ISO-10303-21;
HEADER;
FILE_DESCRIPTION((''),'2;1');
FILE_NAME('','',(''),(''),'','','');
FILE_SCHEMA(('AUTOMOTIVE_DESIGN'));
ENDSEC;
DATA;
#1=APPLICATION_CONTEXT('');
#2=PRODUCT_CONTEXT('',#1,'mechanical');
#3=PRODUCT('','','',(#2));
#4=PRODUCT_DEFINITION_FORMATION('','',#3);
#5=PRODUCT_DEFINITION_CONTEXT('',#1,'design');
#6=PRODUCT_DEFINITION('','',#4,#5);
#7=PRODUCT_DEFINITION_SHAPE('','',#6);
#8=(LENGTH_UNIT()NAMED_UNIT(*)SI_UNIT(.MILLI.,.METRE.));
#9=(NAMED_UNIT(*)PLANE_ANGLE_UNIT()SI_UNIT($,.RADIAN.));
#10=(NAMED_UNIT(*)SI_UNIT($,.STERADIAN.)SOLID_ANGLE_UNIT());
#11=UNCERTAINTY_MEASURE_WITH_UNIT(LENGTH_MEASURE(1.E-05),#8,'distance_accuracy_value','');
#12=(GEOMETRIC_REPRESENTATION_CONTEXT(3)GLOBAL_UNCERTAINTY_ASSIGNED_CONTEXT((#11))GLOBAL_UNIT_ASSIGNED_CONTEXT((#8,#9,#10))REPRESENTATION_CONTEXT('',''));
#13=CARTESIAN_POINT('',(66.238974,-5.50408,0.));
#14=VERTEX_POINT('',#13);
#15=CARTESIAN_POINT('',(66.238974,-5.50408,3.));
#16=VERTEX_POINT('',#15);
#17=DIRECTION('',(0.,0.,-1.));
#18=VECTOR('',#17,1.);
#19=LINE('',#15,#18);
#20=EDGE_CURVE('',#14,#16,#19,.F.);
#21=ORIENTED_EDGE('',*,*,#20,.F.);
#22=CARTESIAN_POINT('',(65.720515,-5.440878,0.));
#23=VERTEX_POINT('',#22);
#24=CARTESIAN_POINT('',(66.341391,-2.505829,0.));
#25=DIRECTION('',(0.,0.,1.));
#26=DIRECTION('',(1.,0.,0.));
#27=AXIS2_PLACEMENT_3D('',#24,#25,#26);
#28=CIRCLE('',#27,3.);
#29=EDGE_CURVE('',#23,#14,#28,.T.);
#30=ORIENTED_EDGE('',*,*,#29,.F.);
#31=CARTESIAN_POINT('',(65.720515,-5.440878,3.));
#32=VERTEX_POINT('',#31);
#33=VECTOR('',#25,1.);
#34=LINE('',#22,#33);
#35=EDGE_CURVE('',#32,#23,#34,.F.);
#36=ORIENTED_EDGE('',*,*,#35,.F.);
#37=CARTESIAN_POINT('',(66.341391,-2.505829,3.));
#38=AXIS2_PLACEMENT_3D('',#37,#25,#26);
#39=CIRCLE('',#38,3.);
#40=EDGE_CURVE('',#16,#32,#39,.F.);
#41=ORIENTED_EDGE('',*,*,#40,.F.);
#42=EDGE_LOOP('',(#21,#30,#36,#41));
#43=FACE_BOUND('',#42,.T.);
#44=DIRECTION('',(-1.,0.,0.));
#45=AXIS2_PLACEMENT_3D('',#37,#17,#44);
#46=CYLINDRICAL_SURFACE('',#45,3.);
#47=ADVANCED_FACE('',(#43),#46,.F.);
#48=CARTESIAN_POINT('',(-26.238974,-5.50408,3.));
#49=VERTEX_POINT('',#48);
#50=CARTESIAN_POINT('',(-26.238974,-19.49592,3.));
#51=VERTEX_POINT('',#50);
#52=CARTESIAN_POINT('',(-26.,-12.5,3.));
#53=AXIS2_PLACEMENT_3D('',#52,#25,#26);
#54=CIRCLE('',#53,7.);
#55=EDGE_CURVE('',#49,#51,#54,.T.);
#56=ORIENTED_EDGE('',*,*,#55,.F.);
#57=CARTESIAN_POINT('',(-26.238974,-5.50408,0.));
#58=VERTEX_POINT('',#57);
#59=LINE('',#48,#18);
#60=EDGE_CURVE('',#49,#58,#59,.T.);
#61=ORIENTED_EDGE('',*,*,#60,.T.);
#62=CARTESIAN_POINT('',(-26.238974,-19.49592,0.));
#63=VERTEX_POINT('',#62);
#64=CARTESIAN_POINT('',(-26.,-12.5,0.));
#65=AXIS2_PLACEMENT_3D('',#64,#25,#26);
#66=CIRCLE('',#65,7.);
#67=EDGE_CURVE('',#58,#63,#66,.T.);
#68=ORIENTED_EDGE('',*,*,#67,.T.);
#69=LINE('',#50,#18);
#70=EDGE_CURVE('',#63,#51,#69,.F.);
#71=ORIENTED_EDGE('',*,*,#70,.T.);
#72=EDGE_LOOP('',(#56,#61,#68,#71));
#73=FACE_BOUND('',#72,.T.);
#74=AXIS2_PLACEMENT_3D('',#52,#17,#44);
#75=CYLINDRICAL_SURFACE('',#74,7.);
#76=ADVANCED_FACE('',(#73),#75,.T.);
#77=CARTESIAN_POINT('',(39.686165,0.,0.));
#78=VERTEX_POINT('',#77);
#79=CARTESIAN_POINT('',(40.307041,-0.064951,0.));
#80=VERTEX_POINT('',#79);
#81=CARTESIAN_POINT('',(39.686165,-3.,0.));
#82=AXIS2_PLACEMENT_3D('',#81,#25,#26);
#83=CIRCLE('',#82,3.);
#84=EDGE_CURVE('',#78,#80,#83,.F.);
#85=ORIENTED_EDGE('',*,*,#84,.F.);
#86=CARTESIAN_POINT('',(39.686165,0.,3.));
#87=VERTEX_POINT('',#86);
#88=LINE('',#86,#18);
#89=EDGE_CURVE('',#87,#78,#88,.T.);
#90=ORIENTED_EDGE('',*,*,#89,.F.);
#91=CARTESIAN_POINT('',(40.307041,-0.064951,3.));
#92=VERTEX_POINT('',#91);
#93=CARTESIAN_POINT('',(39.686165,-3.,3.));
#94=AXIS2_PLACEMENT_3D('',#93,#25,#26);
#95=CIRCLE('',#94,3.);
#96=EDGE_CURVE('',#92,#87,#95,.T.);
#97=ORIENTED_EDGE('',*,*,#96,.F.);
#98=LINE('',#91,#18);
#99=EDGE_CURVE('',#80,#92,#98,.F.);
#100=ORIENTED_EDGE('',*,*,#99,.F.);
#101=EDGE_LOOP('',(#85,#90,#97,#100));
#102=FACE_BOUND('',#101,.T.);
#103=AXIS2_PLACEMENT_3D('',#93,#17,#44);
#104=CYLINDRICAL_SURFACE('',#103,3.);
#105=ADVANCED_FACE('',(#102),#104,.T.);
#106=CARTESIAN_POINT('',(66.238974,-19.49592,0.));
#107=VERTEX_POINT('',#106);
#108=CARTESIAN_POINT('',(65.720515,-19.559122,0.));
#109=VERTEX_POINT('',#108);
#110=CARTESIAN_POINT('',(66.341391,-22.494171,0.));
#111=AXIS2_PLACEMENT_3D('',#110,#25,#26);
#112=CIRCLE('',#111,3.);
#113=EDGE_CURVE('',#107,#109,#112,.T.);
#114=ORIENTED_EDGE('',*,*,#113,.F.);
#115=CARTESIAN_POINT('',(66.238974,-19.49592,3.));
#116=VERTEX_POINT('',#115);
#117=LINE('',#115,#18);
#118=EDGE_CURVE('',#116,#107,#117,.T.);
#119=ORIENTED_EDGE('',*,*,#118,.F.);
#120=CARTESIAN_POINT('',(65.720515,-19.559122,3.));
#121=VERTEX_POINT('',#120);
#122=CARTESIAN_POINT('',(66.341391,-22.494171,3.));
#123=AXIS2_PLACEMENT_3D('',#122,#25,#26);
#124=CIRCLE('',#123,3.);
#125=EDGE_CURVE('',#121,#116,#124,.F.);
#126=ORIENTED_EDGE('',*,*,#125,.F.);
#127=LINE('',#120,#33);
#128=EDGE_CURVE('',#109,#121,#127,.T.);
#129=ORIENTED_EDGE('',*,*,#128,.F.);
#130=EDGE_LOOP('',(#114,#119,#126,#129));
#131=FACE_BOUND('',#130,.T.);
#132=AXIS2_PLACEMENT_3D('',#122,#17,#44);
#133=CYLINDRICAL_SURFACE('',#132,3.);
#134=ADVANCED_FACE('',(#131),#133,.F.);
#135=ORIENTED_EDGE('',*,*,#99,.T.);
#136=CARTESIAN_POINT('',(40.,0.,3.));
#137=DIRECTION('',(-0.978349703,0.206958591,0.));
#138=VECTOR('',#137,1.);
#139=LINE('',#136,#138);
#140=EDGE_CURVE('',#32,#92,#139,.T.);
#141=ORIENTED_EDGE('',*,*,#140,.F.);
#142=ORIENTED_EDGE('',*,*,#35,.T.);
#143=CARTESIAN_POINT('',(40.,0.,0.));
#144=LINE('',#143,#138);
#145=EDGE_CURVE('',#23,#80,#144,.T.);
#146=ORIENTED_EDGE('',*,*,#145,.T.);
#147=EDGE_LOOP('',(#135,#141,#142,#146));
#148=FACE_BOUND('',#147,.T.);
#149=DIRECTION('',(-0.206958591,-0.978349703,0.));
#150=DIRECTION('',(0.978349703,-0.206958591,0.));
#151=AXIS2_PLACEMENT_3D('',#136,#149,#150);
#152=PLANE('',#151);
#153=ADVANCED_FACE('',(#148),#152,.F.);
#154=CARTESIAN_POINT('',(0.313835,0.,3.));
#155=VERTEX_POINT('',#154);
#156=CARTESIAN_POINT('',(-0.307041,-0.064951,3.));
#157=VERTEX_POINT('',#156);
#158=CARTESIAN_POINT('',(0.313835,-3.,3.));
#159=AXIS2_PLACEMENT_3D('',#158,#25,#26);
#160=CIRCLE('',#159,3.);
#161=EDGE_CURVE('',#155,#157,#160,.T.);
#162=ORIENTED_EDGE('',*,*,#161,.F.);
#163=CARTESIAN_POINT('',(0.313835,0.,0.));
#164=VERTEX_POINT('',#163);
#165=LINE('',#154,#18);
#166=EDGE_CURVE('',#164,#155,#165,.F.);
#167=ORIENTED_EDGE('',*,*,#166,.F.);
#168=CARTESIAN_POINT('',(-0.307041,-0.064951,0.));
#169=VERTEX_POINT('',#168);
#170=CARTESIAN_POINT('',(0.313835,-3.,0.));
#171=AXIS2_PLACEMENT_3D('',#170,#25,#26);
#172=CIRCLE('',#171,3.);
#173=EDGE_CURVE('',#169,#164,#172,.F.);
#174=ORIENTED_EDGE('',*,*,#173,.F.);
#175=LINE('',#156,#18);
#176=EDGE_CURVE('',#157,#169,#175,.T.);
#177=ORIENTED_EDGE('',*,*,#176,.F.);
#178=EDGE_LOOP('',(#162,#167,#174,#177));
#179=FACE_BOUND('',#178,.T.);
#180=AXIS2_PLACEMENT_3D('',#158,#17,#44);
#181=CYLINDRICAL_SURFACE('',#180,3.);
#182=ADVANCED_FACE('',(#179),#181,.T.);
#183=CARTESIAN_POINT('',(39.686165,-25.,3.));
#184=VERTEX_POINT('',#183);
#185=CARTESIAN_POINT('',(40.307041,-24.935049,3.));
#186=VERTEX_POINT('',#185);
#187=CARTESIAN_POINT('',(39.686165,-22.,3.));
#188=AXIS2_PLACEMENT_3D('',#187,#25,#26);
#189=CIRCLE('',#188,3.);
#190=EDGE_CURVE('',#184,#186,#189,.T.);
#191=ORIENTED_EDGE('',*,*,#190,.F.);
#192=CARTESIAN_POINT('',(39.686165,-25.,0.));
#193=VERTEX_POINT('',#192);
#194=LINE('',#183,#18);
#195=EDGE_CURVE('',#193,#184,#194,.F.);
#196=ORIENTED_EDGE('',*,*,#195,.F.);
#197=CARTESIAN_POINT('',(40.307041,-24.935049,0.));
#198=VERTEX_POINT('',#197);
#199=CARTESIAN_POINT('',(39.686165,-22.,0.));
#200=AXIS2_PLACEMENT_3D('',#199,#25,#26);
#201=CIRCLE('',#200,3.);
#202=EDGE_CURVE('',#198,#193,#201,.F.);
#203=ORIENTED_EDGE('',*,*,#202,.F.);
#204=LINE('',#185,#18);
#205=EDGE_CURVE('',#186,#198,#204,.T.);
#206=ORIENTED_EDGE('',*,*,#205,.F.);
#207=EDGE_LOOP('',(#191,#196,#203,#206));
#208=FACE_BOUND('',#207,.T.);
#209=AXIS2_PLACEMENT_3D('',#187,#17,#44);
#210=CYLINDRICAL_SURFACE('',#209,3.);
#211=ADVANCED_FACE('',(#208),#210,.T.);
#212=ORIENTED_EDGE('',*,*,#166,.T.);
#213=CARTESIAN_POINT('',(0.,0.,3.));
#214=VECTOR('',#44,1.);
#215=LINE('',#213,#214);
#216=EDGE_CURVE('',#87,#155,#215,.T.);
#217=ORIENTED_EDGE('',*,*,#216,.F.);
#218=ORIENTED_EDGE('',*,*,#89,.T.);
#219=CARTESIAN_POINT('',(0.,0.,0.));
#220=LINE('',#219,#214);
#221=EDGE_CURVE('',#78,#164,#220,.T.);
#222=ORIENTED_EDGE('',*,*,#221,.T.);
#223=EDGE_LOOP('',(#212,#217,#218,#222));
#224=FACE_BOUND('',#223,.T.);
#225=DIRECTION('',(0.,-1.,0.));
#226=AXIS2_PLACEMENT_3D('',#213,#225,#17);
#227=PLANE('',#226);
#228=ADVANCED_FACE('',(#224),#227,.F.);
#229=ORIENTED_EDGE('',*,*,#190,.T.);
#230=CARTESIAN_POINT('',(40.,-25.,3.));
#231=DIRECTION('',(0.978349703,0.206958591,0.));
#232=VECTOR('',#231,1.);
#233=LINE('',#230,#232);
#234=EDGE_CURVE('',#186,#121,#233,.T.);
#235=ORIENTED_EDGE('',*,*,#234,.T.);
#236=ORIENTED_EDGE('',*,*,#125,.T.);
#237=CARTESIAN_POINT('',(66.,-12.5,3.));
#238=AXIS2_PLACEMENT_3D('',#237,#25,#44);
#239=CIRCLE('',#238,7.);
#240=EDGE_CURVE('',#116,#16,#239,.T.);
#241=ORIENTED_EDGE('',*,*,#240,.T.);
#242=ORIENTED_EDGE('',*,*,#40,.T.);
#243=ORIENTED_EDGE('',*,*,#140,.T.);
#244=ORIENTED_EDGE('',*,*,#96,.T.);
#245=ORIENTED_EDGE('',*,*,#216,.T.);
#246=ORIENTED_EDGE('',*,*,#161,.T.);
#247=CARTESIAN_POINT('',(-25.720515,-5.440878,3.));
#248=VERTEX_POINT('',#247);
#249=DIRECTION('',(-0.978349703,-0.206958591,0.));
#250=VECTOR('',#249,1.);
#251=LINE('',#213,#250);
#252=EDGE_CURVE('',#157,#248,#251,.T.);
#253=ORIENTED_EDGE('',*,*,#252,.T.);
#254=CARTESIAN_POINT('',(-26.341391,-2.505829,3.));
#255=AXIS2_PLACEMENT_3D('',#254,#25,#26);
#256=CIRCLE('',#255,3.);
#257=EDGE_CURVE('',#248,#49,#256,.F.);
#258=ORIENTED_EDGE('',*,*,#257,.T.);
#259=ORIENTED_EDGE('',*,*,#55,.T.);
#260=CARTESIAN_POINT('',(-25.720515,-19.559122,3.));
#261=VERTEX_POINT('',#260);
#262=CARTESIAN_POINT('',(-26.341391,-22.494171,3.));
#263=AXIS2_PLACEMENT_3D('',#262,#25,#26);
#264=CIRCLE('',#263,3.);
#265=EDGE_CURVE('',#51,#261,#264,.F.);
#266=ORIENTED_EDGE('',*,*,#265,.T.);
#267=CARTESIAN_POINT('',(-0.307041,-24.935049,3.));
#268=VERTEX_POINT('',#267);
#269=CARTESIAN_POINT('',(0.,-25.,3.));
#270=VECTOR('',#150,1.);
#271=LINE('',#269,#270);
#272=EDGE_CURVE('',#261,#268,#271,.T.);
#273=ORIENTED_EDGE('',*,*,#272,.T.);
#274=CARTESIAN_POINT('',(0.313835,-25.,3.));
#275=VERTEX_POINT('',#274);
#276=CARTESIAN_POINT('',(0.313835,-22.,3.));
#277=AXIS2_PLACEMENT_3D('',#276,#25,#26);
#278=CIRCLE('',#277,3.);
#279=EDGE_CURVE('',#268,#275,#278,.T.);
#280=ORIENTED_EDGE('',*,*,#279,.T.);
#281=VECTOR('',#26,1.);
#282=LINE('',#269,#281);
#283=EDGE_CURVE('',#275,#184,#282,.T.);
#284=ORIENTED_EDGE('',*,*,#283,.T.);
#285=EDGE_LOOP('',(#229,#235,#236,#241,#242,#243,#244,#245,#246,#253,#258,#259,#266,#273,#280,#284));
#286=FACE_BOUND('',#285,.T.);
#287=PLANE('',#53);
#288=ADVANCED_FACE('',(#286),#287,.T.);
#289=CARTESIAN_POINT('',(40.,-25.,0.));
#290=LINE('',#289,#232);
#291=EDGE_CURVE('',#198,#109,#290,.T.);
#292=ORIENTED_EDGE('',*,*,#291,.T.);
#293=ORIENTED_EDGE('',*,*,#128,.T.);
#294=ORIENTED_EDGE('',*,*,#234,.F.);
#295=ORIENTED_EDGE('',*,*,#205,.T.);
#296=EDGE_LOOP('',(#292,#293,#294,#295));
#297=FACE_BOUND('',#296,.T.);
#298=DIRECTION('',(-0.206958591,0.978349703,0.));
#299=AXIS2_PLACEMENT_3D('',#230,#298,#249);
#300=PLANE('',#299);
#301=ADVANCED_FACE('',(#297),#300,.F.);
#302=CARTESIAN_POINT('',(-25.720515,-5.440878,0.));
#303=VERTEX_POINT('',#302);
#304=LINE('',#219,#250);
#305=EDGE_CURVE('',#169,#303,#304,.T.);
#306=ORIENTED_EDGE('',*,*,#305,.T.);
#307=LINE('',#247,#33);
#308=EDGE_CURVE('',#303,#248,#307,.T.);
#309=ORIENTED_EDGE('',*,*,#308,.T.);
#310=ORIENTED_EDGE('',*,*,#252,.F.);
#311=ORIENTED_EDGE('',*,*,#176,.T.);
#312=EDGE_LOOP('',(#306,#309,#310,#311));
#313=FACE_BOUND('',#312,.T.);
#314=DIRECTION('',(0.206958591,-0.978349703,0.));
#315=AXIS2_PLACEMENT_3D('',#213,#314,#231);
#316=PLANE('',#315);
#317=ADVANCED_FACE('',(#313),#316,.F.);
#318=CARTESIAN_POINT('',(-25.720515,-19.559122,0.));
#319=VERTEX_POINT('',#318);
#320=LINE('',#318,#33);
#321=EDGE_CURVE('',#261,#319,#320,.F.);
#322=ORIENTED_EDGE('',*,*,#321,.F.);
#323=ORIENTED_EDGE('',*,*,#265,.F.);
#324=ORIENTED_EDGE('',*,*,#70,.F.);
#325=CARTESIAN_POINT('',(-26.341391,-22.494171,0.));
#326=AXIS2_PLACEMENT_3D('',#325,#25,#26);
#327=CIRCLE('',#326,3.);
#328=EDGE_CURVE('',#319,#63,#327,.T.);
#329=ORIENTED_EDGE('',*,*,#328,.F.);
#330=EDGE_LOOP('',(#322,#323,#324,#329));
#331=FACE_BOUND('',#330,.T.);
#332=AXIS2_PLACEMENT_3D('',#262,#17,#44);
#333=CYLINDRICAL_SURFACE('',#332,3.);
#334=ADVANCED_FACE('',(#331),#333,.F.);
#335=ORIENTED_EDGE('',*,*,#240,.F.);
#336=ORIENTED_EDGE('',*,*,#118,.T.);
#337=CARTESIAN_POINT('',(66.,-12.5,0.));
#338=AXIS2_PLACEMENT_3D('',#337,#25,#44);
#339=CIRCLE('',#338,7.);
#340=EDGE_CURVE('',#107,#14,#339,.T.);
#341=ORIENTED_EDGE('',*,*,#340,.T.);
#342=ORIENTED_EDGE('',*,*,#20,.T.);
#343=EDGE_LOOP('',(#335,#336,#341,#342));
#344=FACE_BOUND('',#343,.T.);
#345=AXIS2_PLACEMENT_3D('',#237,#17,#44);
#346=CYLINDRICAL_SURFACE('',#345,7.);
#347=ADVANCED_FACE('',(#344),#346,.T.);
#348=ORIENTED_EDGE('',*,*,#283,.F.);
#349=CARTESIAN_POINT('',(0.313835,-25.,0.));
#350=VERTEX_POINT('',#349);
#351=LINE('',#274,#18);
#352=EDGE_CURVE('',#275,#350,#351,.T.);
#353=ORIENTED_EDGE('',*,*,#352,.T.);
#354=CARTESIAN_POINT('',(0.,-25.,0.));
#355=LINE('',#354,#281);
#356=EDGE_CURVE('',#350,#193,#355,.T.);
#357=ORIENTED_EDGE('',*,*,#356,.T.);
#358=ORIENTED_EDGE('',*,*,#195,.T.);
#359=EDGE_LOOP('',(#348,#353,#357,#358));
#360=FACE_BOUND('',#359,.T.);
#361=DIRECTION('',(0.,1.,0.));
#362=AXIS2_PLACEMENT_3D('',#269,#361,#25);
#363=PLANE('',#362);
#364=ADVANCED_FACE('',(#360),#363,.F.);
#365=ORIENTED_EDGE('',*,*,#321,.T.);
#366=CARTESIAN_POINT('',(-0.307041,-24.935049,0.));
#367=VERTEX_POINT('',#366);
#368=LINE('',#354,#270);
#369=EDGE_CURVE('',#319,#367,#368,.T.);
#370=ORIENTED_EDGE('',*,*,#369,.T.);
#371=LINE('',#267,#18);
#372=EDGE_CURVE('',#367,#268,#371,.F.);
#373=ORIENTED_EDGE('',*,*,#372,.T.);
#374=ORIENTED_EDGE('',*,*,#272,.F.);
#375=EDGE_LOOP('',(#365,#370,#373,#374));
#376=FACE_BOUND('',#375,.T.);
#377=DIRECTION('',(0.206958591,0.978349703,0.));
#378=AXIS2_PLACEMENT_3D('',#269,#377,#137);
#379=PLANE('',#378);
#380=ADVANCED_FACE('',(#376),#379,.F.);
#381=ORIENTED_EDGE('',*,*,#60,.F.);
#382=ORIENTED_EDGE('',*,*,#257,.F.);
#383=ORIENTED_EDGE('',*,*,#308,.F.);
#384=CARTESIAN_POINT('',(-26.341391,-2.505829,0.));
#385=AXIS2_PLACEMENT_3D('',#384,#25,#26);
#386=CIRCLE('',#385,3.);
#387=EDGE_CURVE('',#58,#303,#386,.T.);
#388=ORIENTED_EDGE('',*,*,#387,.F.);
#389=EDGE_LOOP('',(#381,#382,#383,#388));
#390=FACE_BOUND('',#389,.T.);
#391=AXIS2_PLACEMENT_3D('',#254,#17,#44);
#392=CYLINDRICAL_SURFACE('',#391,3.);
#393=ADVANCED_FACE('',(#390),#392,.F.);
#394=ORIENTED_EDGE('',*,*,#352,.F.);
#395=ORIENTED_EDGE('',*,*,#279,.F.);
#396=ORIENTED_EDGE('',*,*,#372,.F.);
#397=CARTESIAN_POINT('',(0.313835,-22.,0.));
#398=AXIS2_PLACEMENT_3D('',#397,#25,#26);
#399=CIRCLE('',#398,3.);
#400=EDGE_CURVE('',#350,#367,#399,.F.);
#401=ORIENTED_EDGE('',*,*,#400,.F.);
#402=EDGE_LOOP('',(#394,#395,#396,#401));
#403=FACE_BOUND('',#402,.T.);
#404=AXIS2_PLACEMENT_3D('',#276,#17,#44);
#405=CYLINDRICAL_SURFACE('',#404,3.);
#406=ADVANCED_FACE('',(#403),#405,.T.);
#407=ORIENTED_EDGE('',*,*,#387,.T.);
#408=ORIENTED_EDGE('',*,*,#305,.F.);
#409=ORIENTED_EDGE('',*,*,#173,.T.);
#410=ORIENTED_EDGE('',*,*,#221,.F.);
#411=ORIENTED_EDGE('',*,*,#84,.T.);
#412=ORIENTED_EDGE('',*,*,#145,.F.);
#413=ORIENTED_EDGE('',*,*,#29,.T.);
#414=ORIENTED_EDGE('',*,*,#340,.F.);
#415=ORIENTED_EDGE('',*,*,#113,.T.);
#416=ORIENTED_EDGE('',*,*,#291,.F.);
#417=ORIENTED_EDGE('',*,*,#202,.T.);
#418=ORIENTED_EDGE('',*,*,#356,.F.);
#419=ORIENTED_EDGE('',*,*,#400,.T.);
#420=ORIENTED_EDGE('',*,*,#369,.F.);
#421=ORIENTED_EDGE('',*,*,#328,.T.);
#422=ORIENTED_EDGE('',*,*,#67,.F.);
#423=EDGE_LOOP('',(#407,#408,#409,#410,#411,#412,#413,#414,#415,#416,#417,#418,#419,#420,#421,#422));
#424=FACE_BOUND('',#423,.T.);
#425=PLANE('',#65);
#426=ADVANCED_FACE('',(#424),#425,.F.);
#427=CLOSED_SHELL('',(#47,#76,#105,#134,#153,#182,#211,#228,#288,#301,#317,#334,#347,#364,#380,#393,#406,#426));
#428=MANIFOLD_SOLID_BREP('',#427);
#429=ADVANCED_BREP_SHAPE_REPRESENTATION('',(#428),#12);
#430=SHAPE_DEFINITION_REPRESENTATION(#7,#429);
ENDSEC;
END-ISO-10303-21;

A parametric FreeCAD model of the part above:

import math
import FreeCAD as App
import Part
import Sketcher

V = App.Vector


def edges_at(feature, points):
    """Names of the edges that pass closest to the given points."""
    edges = feature.Shape.Edges
    near = lambda p: min(range(len(edges)), key=lambda i: edges[i].distToShape(Part.Vertex(*p))[0])
    return sorted({f"Edge{near(p) + 1}" for p in points})

doc = App.newDocument("Part")
body = doc.addObject("PartDesign::Body", "Body")

# Sketch on XY plane
sketch1 = body.newObject("Sketcher::SketchObject", "Sketch")
sketch1.AttachmentSupport = (doc.getObject("XY_Plane"), [""])
sketch1.MapMode = "FlatFace"
sketch1.addGeometry([
    Part.LineSegment(V(40, 0, 0), V(0, 0, 0)),  # 0
    Part.LineSegment(V(0, 0, 0), V(-26, -6, 0)),  # 1
    Part.ArcOfCircle(Part.Circle(V(-26, -12, 0), V(0, 0, 1), 7), math.radians(90), math.radians(270)),  # 2
    Part.LineSegment(V(-26, -20, 0), V(0, -25, 0)),  # 3
    Part.LineSegment(V(0, -25, 0), V(40, -25, 0)),  # 4
    Part.LineSegment(V(40, -25, 0), V(66, -20, 0)),  # 5
    Part.ArcOfCircle(Part.Circle(V(66, -12, 0), V(0, 0, 1), 7), math.radians(-90), math.radians(90)),  # 6
    Part.LineSegment(V(66, -6, 0), V(40, 0, 0)),  # 7
], False)
sketch1.addConstraint([
    Sketcher.Constraint("Coincident", 0, 2, 1, 1),
    Sketcher.Constraint("Coincident", 1, 2, 2, 1),
    Sketcher.Constraint("Coincident", 2, 2, 3, 1),
    Sketcher.Constraint("Coincident", 3, 2, 4, 1),
    Sketcher.Constraint("Coincident", 4, 2, 5, 1),
    Sketcher.Constraint("Coincident", 5, 2, 6, 1),
    Sketcher.Constraint("Coincident", 6, 2, 7, 1),
    Sketcher.Constraint("Coincident", 7, 2, 0, 1),
    Sketcher.Constraint("Horizontal", 0),
    Sketcher.Constraint("Horizontal", 4),
    Sketcher.Constraint("Coincident", 0, 2, -1, 1),
    Sketcher.Constraint("Equal", 2, 6),
    Sketcher.Constraint("PointOnObject", 3, 2, -2),
    Sketcher.Constraint("Parallel", 1, 5),
    Sketcher.Constraint("Parallel", 3, 7),
    Sketcher.Constraint("Horizontal", 2, 3, 6, 3),
    Sketcher.Constraint("Vertical", 2, 3, 1, 2),
    Sketcher.Constraint("Vertical", 1, 2, 2, 2),
    Sketcher.Constraint("Vertical", 6, 3, 5, 2),
    Sketcher.Constraint("Vertical", 5, 2, 6, 2),
    Sketcher.Constraint("Vertical", 4, 2, 7, 2),
    Sketcher.Constraint("Radius", 2, 7.0),
    Sketcher.Constraint("DistanceX", 0, 2, 0, 1, 40.0),
    Sketcher.Constraint("DistanceX", 2, 3, -1, 1, 26.0),
    Sketcher.Constraint("DistanceY", 3, 2, -1, 1, 25.0),
])
pad1 = body.newObject("PartDesign::Pad", "Pad")
pad1.Profile = sketch1
pad1.Length = 3
doc.recompute()

fillet = body.newObject("PartDesign::Fillet", "Fillet")
fillet.Base = (pad1, edges_at(pad1, [
    (0, 0, 1.5),
    (40, 0, 1.5),
    (66, -5.5, 1.5),
    (66, -19.5, 1.5),
    (40, -25, 1.5),
    (0, -25, 1.5),
    (-26, -19.5, 1.5),
    (-26, -5.5, 1.5),
]))
fillet.Radius = 3

doc.recompute()
